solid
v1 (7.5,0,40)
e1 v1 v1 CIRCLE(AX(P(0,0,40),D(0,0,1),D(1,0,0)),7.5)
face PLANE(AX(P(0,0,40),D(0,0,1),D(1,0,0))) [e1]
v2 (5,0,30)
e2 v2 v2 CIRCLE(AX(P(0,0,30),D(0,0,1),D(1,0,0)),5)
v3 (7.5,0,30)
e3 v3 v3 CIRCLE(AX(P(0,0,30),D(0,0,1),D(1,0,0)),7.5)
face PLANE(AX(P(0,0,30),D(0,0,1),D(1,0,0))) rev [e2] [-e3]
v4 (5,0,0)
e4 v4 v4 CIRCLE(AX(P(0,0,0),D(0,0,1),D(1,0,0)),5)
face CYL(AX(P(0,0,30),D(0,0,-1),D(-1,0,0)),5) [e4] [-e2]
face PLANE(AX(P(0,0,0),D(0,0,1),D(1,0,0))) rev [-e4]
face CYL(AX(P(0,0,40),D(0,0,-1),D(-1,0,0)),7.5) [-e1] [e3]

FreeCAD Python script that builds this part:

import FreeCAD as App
import Part
import Sketcher

doc = App.newDocument("Part")
body = doc.addObject("PartDesign::Body", "Body")

sketch1 = body.newObject("Sketcher::SketchObject", "Sketch")
sketch1.AttachmentSupport = (doc.getObject("XY_Plane"), [""])
sketch1.MapMode = "FlatFace"
sketch1.addGeometry(Part.Circle(App.Vector(0, 0, 0), App.Vector(0, 0, 1), 5), False)
sketch1.addConstraint([
    Sketcher.Constraint("Coincident", 0, 3, -1, 1),
    Sketcher.Constraint("Diameter", 0, 10.0),
])
pad1 = body.newObject("PartDesign::Pad", "Pad")
pad1.Profile = sketch1
pad1.Length = 30

sketch2 = body.newObject("Sketcher::SketchObject", "Sketch001")
sketch2.AttachmentSupport = (doc.getObject("XY_Plane"), [""])
sketch2.MapMode = "FlatFace"
sketch2.AttachmentOffset = App.Placement(App.Vector(0, 0, 30), App.Rotation())
sketch2.addGeometry(Part.Circle(App.Vector(0, 0, 0), App.Vector(0, 0, 1), 8), False)
sketch2.addConstraint([
    Sketcher.Constraint("Coincident", 0, 3, -1, 1),
    Sketcher.Constraint("Diameter", 0, 15.0),
])
pad2 = body.newObject("PartDesign::Pad", "Pad001")
pad2.Profile = sketch2
pad2.Length = 10

doc.recompute()
